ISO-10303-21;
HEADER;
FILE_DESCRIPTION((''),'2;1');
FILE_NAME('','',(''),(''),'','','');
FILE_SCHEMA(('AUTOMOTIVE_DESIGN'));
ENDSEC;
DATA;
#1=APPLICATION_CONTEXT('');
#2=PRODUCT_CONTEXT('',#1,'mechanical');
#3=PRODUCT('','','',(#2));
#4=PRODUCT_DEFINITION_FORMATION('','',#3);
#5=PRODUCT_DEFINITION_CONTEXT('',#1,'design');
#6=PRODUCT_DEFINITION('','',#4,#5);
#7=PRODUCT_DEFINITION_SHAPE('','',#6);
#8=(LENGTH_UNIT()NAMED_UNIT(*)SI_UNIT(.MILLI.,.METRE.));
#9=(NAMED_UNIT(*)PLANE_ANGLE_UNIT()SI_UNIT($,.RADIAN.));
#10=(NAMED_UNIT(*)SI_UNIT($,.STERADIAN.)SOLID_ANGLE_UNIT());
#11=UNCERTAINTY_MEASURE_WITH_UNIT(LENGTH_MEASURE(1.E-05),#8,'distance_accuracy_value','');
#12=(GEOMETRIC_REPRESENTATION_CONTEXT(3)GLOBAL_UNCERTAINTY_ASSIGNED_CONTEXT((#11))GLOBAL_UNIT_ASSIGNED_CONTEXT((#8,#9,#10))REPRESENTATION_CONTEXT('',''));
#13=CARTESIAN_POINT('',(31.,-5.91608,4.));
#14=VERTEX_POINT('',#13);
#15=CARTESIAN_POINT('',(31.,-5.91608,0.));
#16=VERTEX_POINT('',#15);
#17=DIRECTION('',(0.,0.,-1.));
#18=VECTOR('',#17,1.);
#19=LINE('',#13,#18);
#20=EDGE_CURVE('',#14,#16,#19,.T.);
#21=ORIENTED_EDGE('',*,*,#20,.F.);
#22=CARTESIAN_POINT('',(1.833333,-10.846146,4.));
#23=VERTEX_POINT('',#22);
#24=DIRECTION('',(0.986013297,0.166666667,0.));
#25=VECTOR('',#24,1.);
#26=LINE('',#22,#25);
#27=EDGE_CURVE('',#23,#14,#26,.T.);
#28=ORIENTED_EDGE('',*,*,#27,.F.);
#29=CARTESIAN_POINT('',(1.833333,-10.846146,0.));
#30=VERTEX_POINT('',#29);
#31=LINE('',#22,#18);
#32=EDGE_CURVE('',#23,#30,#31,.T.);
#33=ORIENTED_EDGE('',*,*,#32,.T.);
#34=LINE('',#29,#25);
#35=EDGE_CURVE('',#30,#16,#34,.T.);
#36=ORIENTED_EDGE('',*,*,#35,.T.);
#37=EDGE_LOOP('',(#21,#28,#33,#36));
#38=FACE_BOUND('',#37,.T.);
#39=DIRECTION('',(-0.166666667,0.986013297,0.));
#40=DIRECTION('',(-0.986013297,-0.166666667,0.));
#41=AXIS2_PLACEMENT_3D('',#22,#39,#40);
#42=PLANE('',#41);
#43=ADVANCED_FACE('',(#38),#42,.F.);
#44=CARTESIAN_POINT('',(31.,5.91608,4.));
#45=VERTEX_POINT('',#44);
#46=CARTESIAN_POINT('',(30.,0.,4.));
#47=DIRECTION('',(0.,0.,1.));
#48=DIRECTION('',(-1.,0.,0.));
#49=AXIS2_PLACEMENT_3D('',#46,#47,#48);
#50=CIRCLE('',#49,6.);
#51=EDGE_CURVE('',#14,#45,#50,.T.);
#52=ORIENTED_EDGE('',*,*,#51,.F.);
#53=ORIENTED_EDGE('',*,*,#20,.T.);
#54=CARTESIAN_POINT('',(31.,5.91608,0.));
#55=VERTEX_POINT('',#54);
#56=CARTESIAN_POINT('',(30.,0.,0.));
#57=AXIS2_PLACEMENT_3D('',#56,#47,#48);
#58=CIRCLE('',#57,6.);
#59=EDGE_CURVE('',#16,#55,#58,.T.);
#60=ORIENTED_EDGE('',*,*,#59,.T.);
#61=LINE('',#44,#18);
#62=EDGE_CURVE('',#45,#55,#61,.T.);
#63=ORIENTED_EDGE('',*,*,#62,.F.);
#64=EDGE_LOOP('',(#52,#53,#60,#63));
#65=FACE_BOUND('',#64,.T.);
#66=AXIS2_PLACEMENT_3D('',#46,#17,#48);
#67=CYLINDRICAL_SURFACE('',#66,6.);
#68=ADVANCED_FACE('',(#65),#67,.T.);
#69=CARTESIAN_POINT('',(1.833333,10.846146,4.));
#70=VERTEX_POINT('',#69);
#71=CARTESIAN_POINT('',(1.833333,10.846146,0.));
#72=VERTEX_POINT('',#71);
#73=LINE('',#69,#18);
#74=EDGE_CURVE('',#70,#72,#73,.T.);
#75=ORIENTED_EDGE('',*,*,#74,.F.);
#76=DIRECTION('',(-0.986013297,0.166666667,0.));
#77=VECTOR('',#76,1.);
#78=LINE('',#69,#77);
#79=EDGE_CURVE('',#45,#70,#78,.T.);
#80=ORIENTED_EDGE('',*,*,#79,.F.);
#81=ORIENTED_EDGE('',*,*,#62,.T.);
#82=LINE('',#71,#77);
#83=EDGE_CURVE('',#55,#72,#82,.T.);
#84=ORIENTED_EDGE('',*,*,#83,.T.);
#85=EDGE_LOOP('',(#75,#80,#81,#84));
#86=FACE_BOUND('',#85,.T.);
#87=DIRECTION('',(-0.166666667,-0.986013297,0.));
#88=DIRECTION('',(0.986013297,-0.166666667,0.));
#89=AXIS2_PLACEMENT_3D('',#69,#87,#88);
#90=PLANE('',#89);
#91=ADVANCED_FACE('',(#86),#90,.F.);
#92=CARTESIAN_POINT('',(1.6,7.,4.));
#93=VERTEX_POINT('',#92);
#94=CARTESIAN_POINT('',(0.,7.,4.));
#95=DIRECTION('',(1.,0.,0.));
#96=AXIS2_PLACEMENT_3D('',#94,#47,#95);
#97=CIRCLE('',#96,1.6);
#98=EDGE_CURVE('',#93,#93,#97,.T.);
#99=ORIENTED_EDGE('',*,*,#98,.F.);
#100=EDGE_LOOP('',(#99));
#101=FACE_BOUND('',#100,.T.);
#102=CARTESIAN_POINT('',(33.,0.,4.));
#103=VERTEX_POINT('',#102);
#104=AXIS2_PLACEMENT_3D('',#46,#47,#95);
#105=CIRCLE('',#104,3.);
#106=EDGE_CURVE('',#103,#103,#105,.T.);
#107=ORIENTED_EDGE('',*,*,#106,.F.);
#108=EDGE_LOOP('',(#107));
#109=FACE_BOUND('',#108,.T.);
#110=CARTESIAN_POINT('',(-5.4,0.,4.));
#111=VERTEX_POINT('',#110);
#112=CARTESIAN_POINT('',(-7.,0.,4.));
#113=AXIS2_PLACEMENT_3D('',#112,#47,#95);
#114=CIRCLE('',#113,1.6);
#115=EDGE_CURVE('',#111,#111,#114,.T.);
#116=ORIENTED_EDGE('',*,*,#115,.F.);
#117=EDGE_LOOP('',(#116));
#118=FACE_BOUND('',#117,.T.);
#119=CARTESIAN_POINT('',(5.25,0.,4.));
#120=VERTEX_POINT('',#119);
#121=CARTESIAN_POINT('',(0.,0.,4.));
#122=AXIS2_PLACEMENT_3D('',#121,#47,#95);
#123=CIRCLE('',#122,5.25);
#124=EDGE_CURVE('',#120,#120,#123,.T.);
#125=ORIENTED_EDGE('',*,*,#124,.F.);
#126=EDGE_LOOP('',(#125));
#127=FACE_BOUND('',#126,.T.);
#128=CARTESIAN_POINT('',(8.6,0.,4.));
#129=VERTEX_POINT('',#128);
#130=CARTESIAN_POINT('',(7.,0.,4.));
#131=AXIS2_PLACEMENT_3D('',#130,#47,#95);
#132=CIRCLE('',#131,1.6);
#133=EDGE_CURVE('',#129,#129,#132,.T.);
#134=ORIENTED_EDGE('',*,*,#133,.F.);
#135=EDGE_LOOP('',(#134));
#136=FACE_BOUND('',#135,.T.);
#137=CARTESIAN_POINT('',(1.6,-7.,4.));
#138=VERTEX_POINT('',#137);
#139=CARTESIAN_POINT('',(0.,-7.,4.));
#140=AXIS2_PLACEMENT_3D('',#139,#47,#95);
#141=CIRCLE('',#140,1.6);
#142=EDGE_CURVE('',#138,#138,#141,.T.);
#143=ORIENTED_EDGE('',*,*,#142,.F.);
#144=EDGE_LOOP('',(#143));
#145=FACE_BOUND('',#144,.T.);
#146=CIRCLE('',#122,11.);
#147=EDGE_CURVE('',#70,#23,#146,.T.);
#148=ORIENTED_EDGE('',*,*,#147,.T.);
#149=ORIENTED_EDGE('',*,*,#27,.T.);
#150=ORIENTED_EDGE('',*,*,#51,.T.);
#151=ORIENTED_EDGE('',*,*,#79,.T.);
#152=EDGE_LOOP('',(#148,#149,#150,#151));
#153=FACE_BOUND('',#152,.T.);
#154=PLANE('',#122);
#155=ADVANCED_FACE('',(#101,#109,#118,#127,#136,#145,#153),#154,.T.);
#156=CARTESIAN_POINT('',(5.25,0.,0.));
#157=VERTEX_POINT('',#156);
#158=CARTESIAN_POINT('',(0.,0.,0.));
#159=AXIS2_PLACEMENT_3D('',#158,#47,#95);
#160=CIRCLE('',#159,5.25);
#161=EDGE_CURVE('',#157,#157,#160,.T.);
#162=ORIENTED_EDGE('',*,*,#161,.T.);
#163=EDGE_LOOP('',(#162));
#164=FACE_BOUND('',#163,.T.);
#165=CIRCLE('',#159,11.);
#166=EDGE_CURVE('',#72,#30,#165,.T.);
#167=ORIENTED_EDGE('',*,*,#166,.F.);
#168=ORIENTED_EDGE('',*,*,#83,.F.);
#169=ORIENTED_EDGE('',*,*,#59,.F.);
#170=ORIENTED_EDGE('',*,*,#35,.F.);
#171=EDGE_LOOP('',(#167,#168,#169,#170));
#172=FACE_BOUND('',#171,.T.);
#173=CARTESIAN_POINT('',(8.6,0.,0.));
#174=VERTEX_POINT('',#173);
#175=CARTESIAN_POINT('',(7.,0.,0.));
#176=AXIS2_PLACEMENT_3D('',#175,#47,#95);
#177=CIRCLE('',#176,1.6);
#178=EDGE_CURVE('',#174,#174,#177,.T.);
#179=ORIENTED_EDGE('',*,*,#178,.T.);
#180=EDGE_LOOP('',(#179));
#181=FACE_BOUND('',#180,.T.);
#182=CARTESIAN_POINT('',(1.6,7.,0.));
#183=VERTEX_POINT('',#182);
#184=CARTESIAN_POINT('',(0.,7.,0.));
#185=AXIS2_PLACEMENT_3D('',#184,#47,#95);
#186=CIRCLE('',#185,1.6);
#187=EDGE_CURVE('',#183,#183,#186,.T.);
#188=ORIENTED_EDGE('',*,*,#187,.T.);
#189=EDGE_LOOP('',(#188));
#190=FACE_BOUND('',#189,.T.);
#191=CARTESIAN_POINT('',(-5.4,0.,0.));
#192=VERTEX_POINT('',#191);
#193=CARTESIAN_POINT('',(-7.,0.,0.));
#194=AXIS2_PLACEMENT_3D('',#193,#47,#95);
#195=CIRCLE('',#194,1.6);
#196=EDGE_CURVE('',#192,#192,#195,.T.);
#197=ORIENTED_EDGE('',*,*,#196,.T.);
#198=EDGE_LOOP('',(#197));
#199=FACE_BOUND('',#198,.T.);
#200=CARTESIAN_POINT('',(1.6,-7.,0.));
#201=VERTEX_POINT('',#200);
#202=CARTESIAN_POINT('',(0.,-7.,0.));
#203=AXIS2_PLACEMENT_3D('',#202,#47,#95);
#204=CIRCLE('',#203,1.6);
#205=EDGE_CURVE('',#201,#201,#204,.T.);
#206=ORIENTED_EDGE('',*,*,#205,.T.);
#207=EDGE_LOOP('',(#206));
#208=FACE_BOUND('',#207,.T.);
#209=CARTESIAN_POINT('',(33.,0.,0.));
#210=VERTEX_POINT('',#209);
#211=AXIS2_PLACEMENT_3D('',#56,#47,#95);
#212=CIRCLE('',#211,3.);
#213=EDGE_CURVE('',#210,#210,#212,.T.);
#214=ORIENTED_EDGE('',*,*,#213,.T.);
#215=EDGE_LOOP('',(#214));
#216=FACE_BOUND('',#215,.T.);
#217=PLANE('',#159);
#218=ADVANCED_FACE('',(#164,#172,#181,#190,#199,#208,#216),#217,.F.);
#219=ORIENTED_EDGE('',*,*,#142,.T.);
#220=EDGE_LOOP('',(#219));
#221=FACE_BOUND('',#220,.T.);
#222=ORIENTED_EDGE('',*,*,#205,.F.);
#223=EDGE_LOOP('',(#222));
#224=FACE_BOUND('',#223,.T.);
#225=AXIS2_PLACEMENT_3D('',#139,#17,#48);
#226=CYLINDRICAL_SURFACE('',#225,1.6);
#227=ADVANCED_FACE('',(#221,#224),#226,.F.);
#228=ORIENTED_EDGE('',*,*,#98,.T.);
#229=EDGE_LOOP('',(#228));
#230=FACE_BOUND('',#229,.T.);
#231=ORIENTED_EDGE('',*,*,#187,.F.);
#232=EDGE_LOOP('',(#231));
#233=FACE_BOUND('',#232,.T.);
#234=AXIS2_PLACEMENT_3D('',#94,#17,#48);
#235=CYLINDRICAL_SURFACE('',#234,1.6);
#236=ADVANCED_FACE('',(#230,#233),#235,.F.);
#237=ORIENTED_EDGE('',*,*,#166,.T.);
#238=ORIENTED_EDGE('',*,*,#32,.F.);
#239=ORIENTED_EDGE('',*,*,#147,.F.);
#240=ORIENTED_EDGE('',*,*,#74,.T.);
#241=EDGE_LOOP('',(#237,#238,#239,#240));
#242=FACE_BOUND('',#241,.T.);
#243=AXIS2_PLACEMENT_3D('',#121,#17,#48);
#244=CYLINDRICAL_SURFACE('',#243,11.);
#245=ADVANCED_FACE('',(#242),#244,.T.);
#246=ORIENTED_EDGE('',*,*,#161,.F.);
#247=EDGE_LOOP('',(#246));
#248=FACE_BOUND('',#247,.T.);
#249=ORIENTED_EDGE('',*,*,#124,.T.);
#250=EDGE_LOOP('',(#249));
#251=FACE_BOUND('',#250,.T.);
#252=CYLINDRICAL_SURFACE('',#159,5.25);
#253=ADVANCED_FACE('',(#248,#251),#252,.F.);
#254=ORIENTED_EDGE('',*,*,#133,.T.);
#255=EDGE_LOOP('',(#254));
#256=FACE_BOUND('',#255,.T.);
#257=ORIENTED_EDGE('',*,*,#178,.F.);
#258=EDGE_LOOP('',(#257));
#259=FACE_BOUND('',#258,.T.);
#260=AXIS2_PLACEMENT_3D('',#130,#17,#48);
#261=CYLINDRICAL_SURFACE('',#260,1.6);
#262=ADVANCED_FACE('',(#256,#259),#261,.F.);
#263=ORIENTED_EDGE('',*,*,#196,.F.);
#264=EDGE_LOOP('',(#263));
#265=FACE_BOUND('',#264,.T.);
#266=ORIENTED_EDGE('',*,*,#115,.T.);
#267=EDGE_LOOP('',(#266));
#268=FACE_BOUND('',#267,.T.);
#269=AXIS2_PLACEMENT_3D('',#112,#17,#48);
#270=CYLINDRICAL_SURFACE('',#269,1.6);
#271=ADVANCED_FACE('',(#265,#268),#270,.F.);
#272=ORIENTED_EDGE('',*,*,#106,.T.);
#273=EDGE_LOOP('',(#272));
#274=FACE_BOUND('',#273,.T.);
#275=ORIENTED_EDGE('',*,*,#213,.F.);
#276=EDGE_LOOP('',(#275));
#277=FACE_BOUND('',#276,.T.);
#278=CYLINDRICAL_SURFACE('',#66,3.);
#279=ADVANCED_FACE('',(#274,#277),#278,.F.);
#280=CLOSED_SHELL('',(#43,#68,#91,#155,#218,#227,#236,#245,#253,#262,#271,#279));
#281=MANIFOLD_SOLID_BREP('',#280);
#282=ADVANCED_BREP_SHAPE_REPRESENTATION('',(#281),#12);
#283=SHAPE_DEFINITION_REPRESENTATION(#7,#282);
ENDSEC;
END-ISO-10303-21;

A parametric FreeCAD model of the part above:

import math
import FreeCAD as App
import Part
import Sketcher
from FreeCAD import Vector

doc = App.newDocument("Part")
body = doc.addObject("PartDesign::Body", "Body")

sketch1 = body.newObject("Sketcher::SketchObject", "Sketch")
sketch1.AttachmentSupport = (doc.getObject("XY_Plane"), [""])
sketch1.MapMode = "FlatFace"
sketch1.addGeometry([
    Part.LineSegment(Vector(31, 5.91608, 0), Vector(1.833333, 10.846146, 0)),
    Part.ArcOfCircle(Part.Circle(Vector(0, 0, 0), Vector(0, 0, 1), 11), math.radians(80.405932), math.radians(279.594068)),
    Part.LineSegment(Vector(1.833333, -10.846146, 0), Vector(31, -5.91608, 0)),
    Part.ArcOfCircle(Part.Circle(Vector(30, 0, 0), Vector(0, 0, 1), 6), math.radians(-80.405932), math.radians(80.405932)),
    Part.Circle(Vector(0, -7, 0), Vector(0, 0, 1), 1.6),
    Part.Circle(Vector(30, 0, 0), Vector(0, 0, 1), 3),
    Part.Circle(Vector(7, 0, 0), Vector(0, 0, 1), 1.6),
    Part.Circle(Vector(-7, 0, 0), Vector(0, 0, 1), 1.6),
    Part.Circle(Vector(0, 7, 0), Vector(0, 0, 1), 1.6),
], False)
sketch1.addConstraint([
    Sketcher.Constraint("Tangent", 0, 2, 1, 1),
    Sketcher.Constraint("Tangent", 1, 2, 2, 1),
    Sketcher.Constraint("Tangent", 2, 2, 3, 1),
    Sketcher.Constraint("Tangent", 3, 2, 0, 1),
    Sketcher.Constraint("Coincident", 1, 3, -1, 1),
    Sketcher.Constraint("Coincident", 5, 3, 3, 3),
    Sketcher.Constraint("Equal", 4, 6),
    Sketcher.Constraint("Equal", 6, 7),
    Sketcher.Constraint("Equal", 7, 8),
    Sketcher.Constraint("Symmetric", 6, 3, 7, 3, -1, 1),
    Sketcher.Constraint("Symmetric", 4, 3, 8, 3, -1, 1),
    Sketcher.Constraint("PointOnObject", 3, 3, -1),
    Sketcher.Constraint("PointOnObject", 4, 3, -2),
    Sketcher.Constraint("PointOnObject", 6, 3, -1),
    Sketcher.Constraint("Diameter", 5, 6.0),
    Sketcher.Constraint("Radius", 1, 11.0),
    Sketcher.Constraint("Radius", 3, 6.0),
    Sketcher.Constraint("Diameter", 4, 3.2),
    Sketcher.Constraint("DistanceX", -1, 1, 3, 3, 30.0),
    Sketcher.Constraint("DistanceY", 4, 3, -1, 1, 7.0),
    Sketcher.Constraint("DistanceX", -1, 1, 6, 3, 7.0),
])
pad1 = body.newObject("PartDesign::Pad", "Pad")
pad1.Profile = sketch1
pad1.Length = 4

sketch2 = body.newObject("Sketcher::SketchObject", "Sketch001")
sketch2.AttachmentSupport = (doc.getObject("XY_Plane"), [""])
sketch2.MapMode = "FlatFace"
sketch2.AttachmentOffset = App.Placement(Vector(0, 0, 4), App.Rotation())
sketch2.addGeometry(Part.Circle(Vector(0, 0, 0), Vector(0, 0, 1), 5.25), False)
sketch2.addConstraint([
    Sketcher.Constraint("Coincident", 0, 3, -1, 1),
    Sketcher.Constraint("Diameter", 0, 10.5),
])
pocket1 = body.newObject("PartDesign::Pocket", "Pocket")
pocket1.Profile = sketch2
pocket1.Type = "ThroughAll"

doc.recompute()
